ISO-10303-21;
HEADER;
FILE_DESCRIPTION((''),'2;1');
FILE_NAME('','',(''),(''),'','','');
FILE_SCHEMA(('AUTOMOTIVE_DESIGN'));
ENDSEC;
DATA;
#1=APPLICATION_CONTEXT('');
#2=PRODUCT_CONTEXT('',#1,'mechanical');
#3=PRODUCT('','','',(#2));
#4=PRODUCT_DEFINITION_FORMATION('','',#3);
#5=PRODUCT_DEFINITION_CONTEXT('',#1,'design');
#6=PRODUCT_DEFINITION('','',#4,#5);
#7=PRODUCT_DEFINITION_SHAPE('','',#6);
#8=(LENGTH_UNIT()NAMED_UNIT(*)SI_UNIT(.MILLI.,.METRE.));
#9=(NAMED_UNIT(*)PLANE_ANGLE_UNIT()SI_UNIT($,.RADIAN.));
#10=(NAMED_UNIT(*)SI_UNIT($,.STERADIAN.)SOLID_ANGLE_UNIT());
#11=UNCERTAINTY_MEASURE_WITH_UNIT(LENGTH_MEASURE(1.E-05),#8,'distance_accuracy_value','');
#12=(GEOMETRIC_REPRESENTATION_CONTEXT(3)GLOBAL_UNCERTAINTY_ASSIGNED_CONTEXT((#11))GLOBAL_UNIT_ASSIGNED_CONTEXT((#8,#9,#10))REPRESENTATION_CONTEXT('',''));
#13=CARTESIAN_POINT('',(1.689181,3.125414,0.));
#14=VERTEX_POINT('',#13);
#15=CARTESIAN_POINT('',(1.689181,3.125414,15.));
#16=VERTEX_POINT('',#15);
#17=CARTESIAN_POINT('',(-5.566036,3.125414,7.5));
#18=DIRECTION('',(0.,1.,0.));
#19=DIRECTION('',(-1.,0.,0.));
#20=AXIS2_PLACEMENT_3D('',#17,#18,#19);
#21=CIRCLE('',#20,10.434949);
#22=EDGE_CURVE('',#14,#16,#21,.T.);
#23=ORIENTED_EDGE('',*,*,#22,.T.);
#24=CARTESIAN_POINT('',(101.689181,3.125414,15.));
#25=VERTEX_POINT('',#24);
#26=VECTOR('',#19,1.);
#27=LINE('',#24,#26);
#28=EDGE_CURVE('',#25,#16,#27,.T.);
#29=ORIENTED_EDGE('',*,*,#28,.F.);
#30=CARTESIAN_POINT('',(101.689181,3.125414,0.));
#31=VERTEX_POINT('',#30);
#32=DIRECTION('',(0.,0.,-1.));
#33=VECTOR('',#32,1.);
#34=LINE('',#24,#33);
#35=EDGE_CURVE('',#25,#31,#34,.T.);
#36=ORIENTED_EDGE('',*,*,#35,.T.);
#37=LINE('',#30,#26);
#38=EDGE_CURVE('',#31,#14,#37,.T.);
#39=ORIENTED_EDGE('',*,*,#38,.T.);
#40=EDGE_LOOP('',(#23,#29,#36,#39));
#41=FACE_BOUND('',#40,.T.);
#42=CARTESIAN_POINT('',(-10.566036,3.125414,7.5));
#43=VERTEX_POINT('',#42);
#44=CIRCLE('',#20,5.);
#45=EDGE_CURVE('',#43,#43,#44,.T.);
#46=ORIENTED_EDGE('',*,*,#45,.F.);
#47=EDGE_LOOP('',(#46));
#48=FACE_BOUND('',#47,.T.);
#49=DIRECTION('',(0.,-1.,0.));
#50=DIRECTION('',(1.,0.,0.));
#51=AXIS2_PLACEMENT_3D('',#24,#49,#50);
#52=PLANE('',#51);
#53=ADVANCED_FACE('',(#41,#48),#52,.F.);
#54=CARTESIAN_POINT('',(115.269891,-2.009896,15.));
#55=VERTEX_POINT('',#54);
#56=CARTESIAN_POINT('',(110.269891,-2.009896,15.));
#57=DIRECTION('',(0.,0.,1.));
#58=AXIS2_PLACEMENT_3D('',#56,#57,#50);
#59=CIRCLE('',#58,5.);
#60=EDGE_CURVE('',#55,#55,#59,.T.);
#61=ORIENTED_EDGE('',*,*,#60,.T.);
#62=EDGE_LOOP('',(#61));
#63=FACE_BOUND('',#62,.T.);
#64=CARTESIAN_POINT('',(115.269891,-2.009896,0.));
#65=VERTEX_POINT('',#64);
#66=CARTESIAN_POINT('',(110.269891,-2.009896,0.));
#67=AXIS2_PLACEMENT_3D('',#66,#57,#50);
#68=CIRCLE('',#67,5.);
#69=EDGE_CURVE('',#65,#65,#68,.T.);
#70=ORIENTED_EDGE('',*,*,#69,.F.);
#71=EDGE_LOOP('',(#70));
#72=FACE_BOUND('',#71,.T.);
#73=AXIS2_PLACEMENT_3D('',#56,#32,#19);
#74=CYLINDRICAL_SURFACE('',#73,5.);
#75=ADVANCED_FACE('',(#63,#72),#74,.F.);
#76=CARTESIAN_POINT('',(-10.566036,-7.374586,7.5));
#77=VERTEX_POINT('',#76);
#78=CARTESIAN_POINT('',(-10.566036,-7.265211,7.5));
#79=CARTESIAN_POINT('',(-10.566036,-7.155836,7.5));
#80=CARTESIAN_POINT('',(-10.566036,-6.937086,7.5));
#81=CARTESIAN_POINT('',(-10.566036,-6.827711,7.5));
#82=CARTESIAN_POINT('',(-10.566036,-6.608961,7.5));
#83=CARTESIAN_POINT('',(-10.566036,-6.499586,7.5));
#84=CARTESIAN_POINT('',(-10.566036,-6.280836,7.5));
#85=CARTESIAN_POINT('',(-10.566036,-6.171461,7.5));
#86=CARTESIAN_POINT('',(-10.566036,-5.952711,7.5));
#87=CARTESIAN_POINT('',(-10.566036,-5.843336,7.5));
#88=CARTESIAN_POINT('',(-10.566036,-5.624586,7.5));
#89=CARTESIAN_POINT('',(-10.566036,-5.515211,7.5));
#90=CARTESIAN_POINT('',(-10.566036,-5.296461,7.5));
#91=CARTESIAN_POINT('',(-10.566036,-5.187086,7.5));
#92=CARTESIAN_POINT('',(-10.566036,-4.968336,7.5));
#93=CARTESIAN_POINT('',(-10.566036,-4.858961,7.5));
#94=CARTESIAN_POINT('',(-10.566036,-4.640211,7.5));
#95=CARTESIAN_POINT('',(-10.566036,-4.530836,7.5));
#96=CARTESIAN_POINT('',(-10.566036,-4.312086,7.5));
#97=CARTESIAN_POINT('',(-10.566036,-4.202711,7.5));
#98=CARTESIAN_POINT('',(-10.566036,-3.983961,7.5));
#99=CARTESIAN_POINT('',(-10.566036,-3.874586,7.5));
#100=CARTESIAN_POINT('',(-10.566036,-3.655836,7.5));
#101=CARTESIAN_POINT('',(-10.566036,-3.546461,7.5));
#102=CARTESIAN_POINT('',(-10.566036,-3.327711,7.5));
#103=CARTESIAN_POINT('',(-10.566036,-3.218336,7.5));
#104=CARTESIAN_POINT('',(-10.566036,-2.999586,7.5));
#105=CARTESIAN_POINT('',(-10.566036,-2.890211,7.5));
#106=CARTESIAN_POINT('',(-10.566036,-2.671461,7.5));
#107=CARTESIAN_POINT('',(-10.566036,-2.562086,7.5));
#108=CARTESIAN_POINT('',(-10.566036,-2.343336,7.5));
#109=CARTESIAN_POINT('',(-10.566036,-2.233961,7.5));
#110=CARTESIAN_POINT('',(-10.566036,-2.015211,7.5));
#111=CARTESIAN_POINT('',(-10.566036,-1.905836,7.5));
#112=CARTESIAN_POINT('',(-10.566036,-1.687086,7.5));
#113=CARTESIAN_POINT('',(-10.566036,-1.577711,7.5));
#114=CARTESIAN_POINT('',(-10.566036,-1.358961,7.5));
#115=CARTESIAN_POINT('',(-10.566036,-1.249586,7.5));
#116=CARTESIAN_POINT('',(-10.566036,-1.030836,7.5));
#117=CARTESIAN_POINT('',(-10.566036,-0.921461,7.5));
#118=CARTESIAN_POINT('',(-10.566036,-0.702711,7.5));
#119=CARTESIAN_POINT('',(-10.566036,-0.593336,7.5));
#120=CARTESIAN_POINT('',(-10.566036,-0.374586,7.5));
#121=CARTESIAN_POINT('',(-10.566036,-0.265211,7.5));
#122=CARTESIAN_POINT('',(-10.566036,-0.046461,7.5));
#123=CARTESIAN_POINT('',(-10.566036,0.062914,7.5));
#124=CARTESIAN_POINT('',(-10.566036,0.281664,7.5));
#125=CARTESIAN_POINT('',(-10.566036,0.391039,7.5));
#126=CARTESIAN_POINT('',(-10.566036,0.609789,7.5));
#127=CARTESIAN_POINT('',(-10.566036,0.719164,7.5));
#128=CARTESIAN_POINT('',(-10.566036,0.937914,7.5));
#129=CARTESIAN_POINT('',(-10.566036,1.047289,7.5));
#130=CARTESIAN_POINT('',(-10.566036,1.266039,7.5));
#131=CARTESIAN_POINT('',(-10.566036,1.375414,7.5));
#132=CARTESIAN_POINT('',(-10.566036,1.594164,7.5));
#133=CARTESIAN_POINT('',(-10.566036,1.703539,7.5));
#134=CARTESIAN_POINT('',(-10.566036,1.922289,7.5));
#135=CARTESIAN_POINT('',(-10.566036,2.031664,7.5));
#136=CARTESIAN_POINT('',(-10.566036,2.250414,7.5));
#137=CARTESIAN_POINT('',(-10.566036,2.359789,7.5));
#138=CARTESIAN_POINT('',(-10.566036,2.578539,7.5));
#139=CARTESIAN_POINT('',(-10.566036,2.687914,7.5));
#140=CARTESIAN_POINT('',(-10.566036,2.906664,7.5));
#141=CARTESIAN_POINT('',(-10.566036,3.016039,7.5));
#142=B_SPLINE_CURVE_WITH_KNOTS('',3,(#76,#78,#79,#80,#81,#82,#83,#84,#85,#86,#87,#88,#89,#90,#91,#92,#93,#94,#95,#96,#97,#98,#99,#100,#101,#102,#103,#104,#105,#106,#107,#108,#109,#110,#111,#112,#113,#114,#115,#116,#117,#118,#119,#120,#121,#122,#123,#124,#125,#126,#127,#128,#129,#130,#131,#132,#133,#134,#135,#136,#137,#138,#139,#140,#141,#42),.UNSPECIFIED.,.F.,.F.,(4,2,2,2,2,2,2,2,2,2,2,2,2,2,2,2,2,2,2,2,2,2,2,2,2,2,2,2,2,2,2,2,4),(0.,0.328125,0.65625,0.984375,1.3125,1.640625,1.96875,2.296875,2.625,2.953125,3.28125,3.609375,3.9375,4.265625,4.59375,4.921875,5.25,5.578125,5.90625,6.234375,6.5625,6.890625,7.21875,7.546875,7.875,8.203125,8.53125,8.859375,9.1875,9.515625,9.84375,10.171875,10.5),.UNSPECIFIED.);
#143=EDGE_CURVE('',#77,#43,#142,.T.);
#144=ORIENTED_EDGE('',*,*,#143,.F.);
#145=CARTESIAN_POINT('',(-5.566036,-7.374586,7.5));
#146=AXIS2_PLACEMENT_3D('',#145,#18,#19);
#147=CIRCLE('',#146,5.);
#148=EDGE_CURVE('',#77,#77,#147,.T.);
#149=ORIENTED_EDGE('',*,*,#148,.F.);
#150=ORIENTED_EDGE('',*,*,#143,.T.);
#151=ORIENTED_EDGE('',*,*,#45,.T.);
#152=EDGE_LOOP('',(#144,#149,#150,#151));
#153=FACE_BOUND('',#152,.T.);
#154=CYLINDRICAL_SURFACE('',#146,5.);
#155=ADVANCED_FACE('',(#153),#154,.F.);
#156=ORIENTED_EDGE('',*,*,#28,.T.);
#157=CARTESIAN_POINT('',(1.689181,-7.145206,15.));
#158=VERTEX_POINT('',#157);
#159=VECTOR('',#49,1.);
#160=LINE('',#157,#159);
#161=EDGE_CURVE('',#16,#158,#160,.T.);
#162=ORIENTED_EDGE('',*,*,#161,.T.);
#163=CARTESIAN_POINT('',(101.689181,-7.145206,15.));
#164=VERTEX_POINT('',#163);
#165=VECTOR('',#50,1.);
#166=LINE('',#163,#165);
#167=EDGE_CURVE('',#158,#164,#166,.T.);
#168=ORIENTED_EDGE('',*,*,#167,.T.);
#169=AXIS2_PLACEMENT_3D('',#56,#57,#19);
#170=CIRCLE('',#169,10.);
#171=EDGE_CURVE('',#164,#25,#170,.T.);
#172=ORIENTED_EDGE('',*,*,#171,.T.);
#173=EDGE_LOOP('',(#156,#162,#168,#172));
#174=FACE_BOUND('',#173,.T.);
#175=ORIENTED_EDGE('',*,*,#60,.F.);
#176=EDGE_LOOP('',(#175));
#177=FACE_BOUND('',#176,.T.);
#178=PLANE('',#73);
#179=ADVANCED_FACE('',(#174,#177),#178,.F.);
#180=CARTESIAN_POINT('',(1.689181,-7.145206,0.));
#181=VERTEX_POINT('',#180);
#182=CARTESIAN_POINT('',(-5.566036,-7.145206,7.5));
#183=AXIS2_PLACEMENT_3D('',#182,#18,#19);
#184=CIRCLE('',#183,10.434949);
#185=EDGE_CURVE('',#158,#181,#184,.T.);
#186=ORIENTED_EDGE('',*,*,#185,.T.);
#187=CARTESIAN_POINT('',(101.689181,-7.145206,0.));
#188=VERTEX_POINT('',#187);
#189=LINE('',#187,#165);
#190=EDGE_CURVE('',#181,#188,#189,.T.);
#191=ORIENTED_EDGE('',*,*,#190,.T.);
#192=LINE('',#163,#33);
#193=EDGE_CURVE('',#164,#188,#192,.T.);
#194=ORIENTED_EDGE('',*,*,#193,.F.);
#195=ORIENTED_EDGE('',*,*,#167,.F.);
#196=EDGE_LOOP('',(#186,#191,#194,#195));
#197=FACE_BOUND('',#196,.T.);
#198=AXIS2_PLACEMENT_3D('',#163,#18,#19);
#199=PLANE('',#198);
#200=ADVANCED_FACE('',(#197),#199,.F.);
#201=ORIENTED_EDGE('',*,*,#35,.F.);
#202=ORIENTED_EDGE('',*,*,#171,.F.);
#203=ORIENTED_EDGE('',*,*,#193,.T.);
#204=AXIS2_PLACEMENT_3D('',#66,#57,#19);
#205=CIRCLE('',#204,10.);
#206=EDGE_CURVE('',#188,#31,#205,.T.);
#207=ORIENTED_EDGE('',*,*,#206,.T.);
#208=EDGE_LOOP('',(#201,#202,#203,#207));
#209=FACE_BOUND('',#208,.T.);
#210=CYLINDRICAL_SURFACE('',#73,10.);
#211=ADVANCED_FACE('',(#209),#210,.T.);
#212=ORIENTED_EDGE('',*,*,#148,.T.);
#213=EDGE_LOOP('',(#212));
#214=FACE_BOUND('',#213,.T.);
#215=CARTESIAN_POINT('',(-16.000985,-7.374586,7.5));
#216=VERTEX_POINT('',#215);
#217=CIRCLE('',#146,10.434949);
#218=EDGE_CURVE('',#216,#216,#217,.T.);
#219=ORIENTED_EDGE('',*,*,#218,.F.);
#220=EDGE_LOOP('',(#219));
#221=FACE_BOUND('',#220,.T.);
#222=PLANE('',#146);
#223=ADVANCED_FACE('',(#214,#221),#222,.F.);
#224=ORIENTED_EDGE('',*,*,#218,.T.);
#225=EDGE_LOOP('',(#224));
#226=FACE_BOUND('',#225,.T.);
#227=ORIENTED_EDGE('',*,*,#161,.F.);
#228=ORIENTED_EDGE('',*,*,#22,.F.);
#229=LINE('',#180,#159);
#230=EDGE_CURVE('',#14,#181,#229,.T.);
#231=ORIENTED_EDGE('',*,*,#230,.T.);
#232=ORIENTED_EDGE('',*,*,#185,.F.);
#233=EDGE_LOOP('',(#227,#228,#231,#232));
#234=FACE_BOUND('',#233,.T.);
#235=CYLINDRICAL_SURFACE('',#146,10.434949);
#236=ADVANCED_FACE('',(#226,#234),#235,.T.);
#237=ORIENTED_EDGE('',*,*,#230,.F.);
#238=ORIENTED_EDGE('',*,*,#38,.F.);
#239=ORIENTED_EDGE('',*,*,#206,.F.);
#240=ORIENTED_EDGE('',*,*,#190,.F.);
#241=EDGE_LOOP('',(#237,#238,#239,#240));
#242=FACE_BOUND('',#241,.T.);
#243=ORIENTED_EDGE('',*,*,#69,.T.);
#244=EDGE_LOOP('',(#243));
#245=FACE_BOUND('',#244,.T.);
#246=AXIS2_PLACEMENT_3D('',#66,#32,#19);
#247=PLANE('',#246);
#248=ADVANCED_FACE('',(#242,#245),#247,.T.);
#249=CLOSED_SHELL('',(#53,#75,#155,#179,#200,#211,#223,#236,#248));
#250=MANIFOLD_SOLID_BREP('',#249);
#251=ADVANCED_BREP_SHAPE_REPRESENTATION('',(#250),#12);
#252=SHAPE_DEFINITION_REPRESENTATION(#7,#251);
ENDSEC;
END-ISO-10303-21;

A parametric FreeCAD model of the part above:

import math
import FreeCAD as App
import Part
import Sketcher

doc = App.newDocument("Part")
body = doc.addObject("PartDesign::Body", "Body")

# Sketch on XY plane
sketch1 = doc.addObject("Sketcher::SketchObject", "Sketch")
body.addObject(sketch1)
sketch1.AttachmentSupport = (doc.XY_Plane, [""])
sketch1.MapMode = "FlatFace"
sketch1.addGeometry([
    Part.LineSegment(App.Vector(2, -7, 0), App.Vector(102, -7, 0)),  # 0
    Part.ArcOfCircle(Part.Circle(App.Vector(110, -2, 0), App.Vector(0, 0, 1), 10), math.radians(-149), math.radians(149)),  # 1
    Part.LineSegment(App.Vector(102, 3, 0), App.Vector(2, 3, 0)),  # 2
    Part.LineSegment(App.Vector(2, 3, 0), App.Vector(2, -7, 0)),  # 3
    Part.Circle(App.Vector(110, -2, 0), App.Vector(0, 0, 1), 5),  # 4
], False)
sketch1.addConstraint([
    Sketcher.Constraint("Coincident", 0, 2, 1, 1),
    Sketcher.Constraint("Coincident", 1, 2, 2, 1),
    Sketcher.Constraint("Coincident", 2, 2, 3, 1),
    Sketcher.Constraint("Coincident", 3, 2, 0, 1),
    Sketcher.Constraint("Horizontal", 0),
    Sketcher.Constraint("Horizontal", 2),
    Sketcher.Constraint("Vertical", 3),
    Sketcher.Constraint("Coincident", 4, 3, 1, 3),
    Sketcher.Constraint("Vertical", 0, 2, 1, 2),
    Sketcher.Constraint("Diameter", 4, 10.0),
    Sketcher.Constraint("Radius", 1, 10.0),
    Sketcher.Constraint("DistanceX", 0, 1, 0, 2, 100.0),
    Sketcher.Constraint("DistanceY", 3, 2, 3, 1, 10.270619),
    Sketcher.Constraint("DistanceX", -1, 1, 1, 3, 110.269891),
    Sketcher.Constraint("DistanceY", 1, 3, -1, 1, 2.009896),
])
pad1 = doc.addObject("PartDesign::Pad", "Pad")
body.addObject(pad1)
pad1.Profile = sketch1
pad1.Length = 15

# Sketch on XZ plane
sketch2 = doc.addObject("Sketcher::SketchObject", "Sketch001")
body.addObject(sketch2)
sketch2.AttachmentSupport = (doc.XZ_Plane, [""])
sketch2.MapMode = "FlatFace"
sketch2.AttachmentOffset = App.Placement(App.Vector(0, 0, -3.125414), App.Rotation())
sketch2.addGeometry([
    Part.Circle(App.Vector(-6, 8, 0), App.Vector(0, 0, 1), 10),
    Part.Circle(App.Vector(-6, 8, 0), App.Vector(0, 0, 1), 5),
], False)
sketch2.addConstraint([
    Sketcher.Constraint("Coincident", 1, 3, 0, 3),
    Sketcher.Constraint("Diameter", 1, 10.0),
    Sketcher.Constraint("Diameter", 0, 20.869898),
    Sketcher.Constraint("DistanceY", -1, 1, 0, 3, 7.5),
    Sketcher.Constraint("DistanceX", 0, 3, -1, 1, 5.566036),
])
pad2 = doc.addObject("PartDesign::Pad", "Pad001")
body.addObject(pad2)
pad2.Profile = sketch2
pad2.Length = 10.5

doc.recompute()
